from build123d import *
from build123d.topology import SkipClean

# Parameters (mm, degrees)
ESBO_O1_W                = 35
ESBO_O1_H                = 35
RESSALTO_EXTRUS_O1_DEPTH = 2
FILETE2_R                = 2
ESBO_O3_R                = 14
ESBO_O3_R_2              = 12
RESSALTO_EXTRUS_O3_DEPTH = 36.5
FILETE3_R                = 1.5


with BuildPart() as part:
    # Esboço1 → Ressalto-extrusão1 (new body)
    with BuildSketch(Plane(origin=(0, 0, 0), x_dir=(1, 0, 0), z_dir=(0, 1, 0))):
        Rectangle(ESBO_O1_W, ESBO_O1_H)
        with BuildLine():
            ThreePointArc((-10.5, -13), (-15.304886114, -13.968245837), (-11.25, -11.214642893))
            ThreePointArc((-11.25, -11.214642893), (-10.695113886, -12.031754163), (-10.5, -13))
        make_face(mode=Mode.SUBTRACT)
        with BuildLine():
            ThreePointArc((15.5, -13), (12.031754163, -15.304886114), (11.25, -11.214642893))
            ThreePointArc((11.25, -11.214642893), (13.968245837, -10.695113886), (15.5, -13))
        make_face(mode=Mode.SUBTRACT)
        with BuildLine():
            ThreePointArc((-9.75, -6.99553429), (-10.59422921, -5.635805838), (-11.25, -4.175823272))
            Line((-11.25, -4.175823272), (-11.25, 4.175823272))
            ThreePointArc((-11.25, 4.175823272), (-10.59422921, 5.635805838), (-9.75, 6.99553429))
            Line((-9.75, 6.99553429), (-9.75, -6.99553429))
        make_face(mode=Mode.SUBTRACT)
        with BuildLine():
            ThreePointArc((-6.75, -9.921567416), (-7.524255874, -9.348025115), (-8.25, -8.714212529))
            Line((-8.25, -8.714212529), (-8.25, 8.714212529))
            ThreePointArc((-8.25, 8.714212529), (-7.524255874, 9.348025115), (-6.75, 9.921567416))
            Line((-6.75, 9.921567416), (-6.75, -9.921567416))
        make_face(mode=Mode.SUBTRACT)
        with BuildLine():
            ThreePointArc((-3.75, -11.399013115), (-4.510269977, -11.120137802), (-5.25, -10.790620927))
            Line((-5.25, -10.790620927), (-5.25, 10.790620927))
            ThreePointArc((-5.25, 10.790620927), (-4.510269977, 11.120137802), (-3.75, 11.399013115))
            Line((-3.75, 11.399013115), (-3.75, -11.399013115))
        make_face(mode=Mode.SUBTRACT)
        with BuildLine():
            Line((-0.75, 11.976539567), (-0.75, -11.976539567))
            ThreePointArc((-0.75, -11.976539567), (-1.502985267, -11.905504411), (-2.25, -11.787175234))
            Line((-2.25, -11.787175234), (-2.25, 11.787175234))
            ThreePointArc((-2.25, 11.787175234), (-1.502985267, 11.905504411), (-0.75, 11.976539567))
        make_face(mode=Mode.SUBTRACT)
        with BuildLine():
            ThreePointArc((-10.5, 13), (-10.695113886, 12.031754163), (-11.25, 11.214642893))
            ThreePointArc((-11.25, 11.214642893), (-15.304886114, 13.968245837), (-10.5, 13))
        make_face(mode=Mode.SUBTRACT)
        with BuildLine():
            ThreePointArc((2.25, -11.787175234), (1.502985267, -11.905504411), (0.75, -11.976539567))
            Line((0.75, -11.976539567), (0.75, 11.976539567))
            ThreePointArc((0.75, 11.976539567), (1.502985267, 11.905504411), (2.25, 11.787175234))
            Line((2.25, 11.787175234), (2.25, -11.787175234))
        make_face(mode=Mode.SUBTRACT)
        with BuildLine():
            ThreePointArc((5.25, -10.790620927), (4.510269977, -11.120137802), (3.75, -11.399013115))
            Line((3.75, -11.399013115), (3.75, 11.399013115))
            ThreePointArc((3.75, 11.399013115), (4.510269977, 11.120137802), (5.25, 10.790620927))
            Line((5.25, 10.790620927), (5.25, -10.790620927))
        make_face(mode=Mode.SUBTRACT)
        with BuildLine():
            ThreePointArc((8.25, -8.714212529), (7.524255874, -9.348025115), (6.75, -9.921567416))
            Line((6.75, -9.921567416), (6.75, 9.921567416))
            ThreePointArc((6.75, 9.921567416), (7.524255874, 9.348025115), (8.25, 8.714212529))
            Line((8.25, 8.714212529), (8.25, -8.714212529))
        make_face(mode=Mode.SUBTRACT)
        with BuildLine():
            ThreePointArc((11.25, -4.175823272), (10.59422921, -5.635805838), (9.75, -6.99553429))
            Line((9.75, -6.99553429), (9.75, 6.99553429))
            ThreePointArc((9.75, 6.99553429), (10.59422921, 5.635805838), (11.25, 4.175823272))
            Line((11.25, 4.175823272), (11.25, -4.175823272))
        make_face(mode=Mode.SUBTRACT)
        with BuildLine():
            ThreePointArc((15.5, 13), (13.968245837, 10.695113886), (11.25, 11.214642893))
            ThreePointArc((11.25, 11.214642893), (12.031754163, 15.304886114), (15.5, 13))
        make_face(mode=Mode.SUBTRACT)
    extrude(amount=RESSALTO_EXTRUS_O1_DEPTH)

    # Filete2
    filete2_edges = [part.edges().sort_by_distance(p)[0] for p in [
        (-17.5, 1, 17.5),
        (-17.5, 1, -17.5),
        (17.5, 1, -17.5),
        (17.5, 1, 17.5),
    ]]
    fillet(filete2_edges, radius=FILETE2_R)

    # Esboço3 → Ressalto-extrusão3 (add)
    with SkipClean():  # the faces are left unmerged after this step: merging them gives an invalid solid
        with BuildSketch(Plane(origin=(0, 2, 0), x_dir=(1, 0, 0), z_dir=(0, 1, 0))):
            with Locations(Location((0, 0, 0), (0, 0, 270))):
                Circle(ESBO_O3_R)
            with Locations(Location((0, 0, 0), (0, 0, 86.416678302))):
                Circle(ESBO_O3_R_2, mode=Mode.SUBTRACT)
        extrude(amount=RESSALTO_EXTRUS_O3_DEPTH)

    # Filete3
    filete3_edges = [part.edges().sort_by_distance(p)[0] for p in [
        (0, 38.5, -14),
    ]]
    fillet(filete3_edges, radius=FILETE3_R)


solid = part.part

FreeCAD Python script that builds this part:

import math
import FreeCAD as App
import Part
import Sketcher
from FreeCAD import Vector
Q = App.Units.Quantity


def edges_at(feature, points):
    """Names of the edges that pass closest to the given points."""
    edges = feature.Shape.Edges
    near = lambda p: min(range(len(edges)), key=lambda i: edges[i].distToShape(Part.Vertex(*p))[0])
    return sorted({f"Edge{near(p) + 1}" for p in points})

doc = App.newDocument("Part")
body = doc.addObject("PartDesign::Body", "Body")

# Sketch on XZ plane
sketch1 = doc.addObject("Sketcher::SketchObject", "Sketch")
body.addObject(sketch1)
sketch1.AttachmentSupport = (doc.XZ_Plane, [""])
sketch1.MapMode = "FlatFace"
sketch1.addGeometry(Part.LineSegment(Vector(-17.5, -17.5, 0), Vector(-17.5, 17.5, 0)), False)
sketch1.addGeometry(Part.LineSegment(Vector(-17.5, 17.5, 0), Vector(17.5, 17.5, 0)), False)
sketch1.addGeometry(Part.LineSegment(Vector(17.5, 17.5, 0), Vector(17.5, -17.5, 0)), False)
sketch1.addGeometry(Part.LineSegment(Vector(17.5, -17.5, 0), Vector(-17.5, -17.5, 0)), False)
sketch1.addGeometry(Part.ArcOfCircle(Part.Circle(Vector(-13, 13, 0), Vector(0, 0, 1), 2.5), math.radians(-45.572996), math.radians(0)), False)
sketch1.addGeometry(Part.ArcOfCircle(Part.Circle(Vector(-13, 13, 0), Vector(0, 0, 1), 2.5), math.radians(0), math.radians(314.427004)), False)
sketch1.addGeometry(Part.ArcOfCircle(Part.Circle(Vector(13, 13, 0), Vector(0, 0, 1), 2.5), math.radians(-134.427004), math.radians(0)), False)
sketch1.addGeometry(Part.ArcOfCircle(Part.Circle(Vector(13, 13, 0), Vector(0, 0, 1), 2.5), math.radians(0), math.radians(225.572996)), False)
sketch1.addGeometry(Part.LineSegment(Vector(-9.75, -6.995534, 0), Vector(-9.75, 6.995534, 0)), False)
sketch1.addGeometry(Part.ArcOfCircle(Part.Circle(Vector(0, 0, 0), Vector(0, 0, 1), 12), math.radians(144.340912), math.radians(159.635865)), False)
sketch1.addGeometry(Part.LineSegment(Vector(-11.25, 4.175823, 0), Vector(-11.25, -4.175823, 0)), False)
sketch1.addGeometry(Part.ArcOfCircle(Part.Circle(Vector(0, 0, 0), Vector(0, 0, 1), 12), math.radians(-159.635865), math.radians(-144.340912)), False)
sketch1.addGeometry(Part.LineSegment(Vector(-6.75, -9.921567, 0), Vector(-6.75, 9.921567, 0)), False)
sketch1.addGeometry(Part.ArcOfCircle(Part.Circle(Vector(0, 0, 0), Vector(0, 0, 1), 12), math.radians(124.228866), math.radians(133.432537)), False)
sketch1.addGeometry(Part.LineSegment(Vector(-8.25, 8.714213, 0), Vector(-8.25, -8.714213, 0)), False)
sketch1.addGeometry(Part.ArcOfCircle(Part.Circle(Vector(0, 0, 0), Vector(0, 0, 1), 12), math.radians(-133.432537), math.radians(-124.228866)), False)
sketch1.addGeometry(Part.LineSegment(Vector(-3.75, -11.399013, 0), Vector(-3.75, 11.399013, 0)), False)
sketch1.addGeometry(Part.ArcOfCircle(Part.Circle(Vector(0, 0, 0), Vector(0, 0, 1), 12), math.radians(108.209957), math.radians(115.94448)), False)
sketch1.addGeometry(Part.LineSegment(Vector(-5.25, 10.790621, 0), Vector(-5.25, -10.790621, 0)), False)
sketch1.addGeometry(Part.ArcOfCircle(Part.Circle(Vector(0, 0, 0), Vector(0, 0, 1), 12), math.radians(-115.94448), math.radians(-108.209957)), False)
sketch1.addGeometry(Part.ArcOfCircle(Part.Circle(Vector(0, 0, 0), Vector(0, 0, 1), 12), math.radians(-100.806923), math.radians(-93.583322)), False)
sketch1.addGeometry(Part.LineSegment(Vector(-0.75, -11.97654, 0), Vector(-0.75, 11.97654, 0)), False)
sketch1.addGeometry(Part.ArcOfCircle(Part.Circle(Vector(0, 0, 0), Vector(0, 0, 1), 12), math.radians(93.583322), math.radians(100.806923)), False)
sketch1.addGeometry(Part.LineSegment(Vector(-2.25, 11.787175, 0), Vector(-2.25, -11.787175, 0)), False)
sketch1.addGeometry(Part.ArcOfCircle(Part.Circle(Vector(-13, -13, 0), Vector(0, 0, 1), 2.5), math.radians(45.572996), math.radians(360)), False)
sketch1.addGeometry(Part.ArcOfCircle(Part.Circle(Vector(-13, -13, 0), Vector(0, 0, 1), 2.5), math.radians(0), math.radians(45.572996)), False)
sketch1.addGeometry(Part.LineSegment(Vector(2.25, -11.787175, 0), Vector(2.25, 11.787175, 0)), False)
sketch1.addGeometry(Part.ArcOfCircle(Part.Circle(Vector(0, 0, 0), Vector(0, 0, 1), 12), math.radians(79.193077), math.radians(86.416678)), False)
sketch1.addGeometry(Part.LineSegment(Vector(0.75, 11.97654, 0), Vector(0.75, -11.97654, 0)), False)
sketch1.addGeometry(Part.ArcOfCircle(Part.Circle(Vector(0, 0, 0), Vector(0, 0, 1), 12), math.radians(-86.416678), math.radians(-79.193077)), False)
sketch1.addGeometry(Part.LineSegment(Vector(5.25, -10.790621, 0), Vector(5.25, 10.790621, 0)), False)
sketch1.addGeometry(Part.ArcOfCircle(Part.Circle(Vector(0, 0, 0), Vector(0, 0, 1), 12), math.radians(64.05552), math.radians(71.790043)), False)
sketch1.addGeometry(Part.LineSegment(Vector(3.75, 11.399013, 0), Vector(3.75, -11.399013, 0)), False)
sketch1.addGeometry(Part.ArcOfCircle(Part.Circle(Vector(0, 0, 0), Vector(0, 0, 1), 12), math.radians(-71.790043), math.radians(-64.05552)), False)
sketch1.addGeometry(Part.LineSegment(Vector(8.25, -8.714213, 0), Vector(8.25, 8.714213, 0)), False)
sketch1.addGeometry(Part.ArcOfCircle(Part.Circle(Vector(0, 0, 0), Vector(0, 0, 1), 12), math.radians(46.567463), math.radians(55.771134)), False)
sketch1.addGeometry(Part.LineSegment(Vector(6.75, 9.921567, 0), Vector(6.75, -9.921567, 0)), False)
sketch1.addGeometry(Part.ArcOfCircle(Part.Circle(Vector(0, 0, 0), Vector(0, 0, 1), 12), math.radians(-55.771134), math.radians(-46.567463)), False)
sketch1.addGeometry(Part.LineSegment(Vector(11.25, -4.175823, 0), Vector(11.25, 4.175823, 0)), False)
sketch1.addGeometry(Part.ArcOfCircle(Part.Circle(Vector(0, 0, 0), Vector(0, 0, 1), 12), math.radians(20.364135), math.radians(35.659088)), False)
sketch1.addGeometry(Part.LineSegment(Vector(9.75, 6.995534, 0), Vector(9.75, -6.995534, 0)), False)
sketch1.addGeometry(Part.ArcOfCircle(Part.Circle(Vector(0, 0, 0), Vector(0, 0, 1), 12), math.radians(-35.659088), math.radians(-20.364135)), False)
sketch1.addGeometry(Part.ArcOfCircle(Part.Circle(Vector(13, -13, 0), Vector(0, 0, 1), 2.5), math.radians(134.427004), math.radians(360)), False)
sketch1.addGeometry(Part.ArcOfCircle(Part.Circle(Vector(13, -13, 0), Vector(0, 0, 1), 2.5), math.radians(0), math.radians(134.427004)), False)
sketch1.addConstraint(Sketcher.Constraint("Coincident", 0, 2, 1, 1))
sketch1.addConstraint(Sketcher.Constraint("Coincident", 1, 2, 2, 1))
sketch1.addConstraint(Sketcher.Constraint("Coincident", 2, 2, 3, 1))
sketch1.addConstraint(Sketcher.Constraint("Coincident", 3, 2, 0, 1))
sketch1.addConstraint(Sketcher.Constraint("Tangent", 4, 1, 5, 2))
sketch1.addConstraint(Sketcher.Constraint("Coincident", 5, 1, 4, 2))
sketch1.addConstraint(Sketcher.Constraint("Tangent", 6, 1, 7, 2))
sketch1.addConstraint(Sketcher.Constraint("Coincident", 7, 1, 6, 2))
sketch1.addConstraint(Sketcher.Constraint("Coincident", 8, 2, 9, 1))
sketch1.addConstraint(Sketcher.Constraint("Coincident", 9, 2, 10, 1))
sketch1.addConstraint(Sketcher.Constraint("Coincident", 10, 2, 11, 1))
sketch1.addConstraint(Sketcher.Constraint("Coincident", 11, 2, 8, 1))
sketch1.addConstraint(Sketcher.Constraint("Coincident", 12, 2, 13, 1))
sketch1.addConstraint(Sketcher.Constraint("Coincident", 13, 2, 14, 1))
sketch1.addConstraint(Sketcher.Constraint("Coincident", 14, 2, 15, 1))
sketch1.addConstraint(Sketcher.Constraint("Coincident", 15, 2, 12, 1))
sketch1.addConstraint(Sketcher.Constraint("Coincident", 16, 2, 17, 1))
sketch1.addConstraint(Sketcher.Constraint("Coincident", 17, 2, 18, 1))
sketch1.addConstraint(Sketcher.Constraint("Coincident", 18, 2, 19, 1))
sketch1.addConstraint(Sketcher.Constraint("Coincident", 19, 2, 16, 1))
sketch1.addConstraint(Sketcher.Constraint("Coincident", 20, 2, 21, 1))
sketch1.addConstraint(Sketcher.Constraint("Coincident", 21, 2, 22, 1))
sketch1.addConstraint(Sketcher.Constraint("Coincident", 22, 2, 23, 1))
sketch1.addConstraint(Sketcher.Constraint("Coincident", 23, 2, 20, 1))
sketch1.addConstraint(Sketcher.Constraint("Tangent", 24, 1, 25, 2))
sketch1.addConstraint(Sketcher.Constraint("Coincident", 25, 1, 24, 2))
sketch1.addConstraint(Sketcher.Constraint("Coincident", 26, 2, 27, 1))
sketch1.addConstraint(Sketcher.Constraint("Coincident", 27, 2, 28, 1))
sketch1.addConstraint(Sketcher.Constraint("Coincident", 28, 2, 29, 1))
sketch1.addConstraint(Sketcher.Constraint("Coincident", 29, 2, 26, 1))
sketch1.addConstraint(Sketcher.Constraint("Coincident", 30, 2, 31, 1))
sketch1.addConstraint(Sketcher.Constraint("Coincident", 31, 2, 32, 1))
sketch1.addConstraint(Sketcher.Constraint("Coincident", 32, 2, 33, 1))
sketch1.addConstraint(Sketcher.Constraint("Coincident", 33, 2, 30, 1))
sketch1.addConstraint(Sketcher.Constraint("Coincident", 34, 2, 35, 1))
sketch1.addConstraint(Sketcher.Constraint("Coincident", 35, 2, 36, 1))
sketch1.addConstraint(Sketcher.Constraint("Coincident", 36, 2, 37, 1))
sketch1.addConstraint(Sketcher.Constraint("Coincident", 37, 2, 34, 1))
sketch1.addConstraint(Sketcher.Constraint("Coincident", 38, 2, 39, 1))
sketch1.addConstraint(Sketcher.Constraint("Coincident", 39, 2, 40, 1))
sketch1.addConstraint(Sketcher.Constraint("Coincident", 40, 2, 41, 1))
sketch1.addConstraint(Sketcher.Constraint("Coincident", 41, 2, 38, 1))
sketch1.addConstraint(Sketcher.Constraint("Tangent", 42, 1, 43, 2))
sketch1.addConstraint(Sketcher.Constraint("Coincident", 43, 1, 42, 2))
sketch1.addConstraint(Sketcher.Constraint("Vertical", 0))
sketch1.addConstraint(Sketcher.Constraint("Horizontal", 1))
sketch1.addConstraint(Sketcher.Constraint("Vertical", 2))
sketch1.addConstraint(Sketcher.Constraint("Horizontal", 3))
sketch1.addConstraint(Sketcher.Constraint("Vertical", 8))
sketch1.addConstraint(Sketcher.Constraint("Vertical", 10))
sketch1.addConstraint(Sketcher.Constraint("Vertical", 12))
sketch1.addConstraint(Sketcher.Constraint("Vertical", 14))
sketch1.addConstraint(Sketcher.Constraint("Vertical", 16))
sketch1.addConstraint(Sketcher.Constraint("Vertical", 18))
sketch1.addConstraint(Sketcher.Constraint("Vertical", 21))
sketch1.addConstraint(Sketcher.Constraint("Vertical", 23))
sketch1.addConstraint(Sketcher.Constraint("Vertical", 26))
sketch1.addConstraint(Sketcher.Constraint("Vertical", 28))
sketch1.addConstraint(Sketcher.Constraint("Vertical", 30))
sketch1.addConstraint(Sketcher.Constraint("Vertical", 32))
sketch1.addConstraint(Sketcher.Constraint("Vertical", 34))
sketch1.addConstraint(Sketcher.Constraint("Vertical", 36))
sketch1.addConstraint(Sketcher.Constraint("Vertical", 38))
sketch1.addConstraint(Sketcher.Constraint("Vertical", 40))
sketch1.addConstraint(Sketcher.Constraint("Coincident", 9, 3, -1, 1))
sketch1.addConstraint(Sketcher.Constraint("Coincident", 11, 3, -1, 1))
sketch1.addConstraint(Sketcher.Constraint("Coincident", 13, 3, -1, 1))
sketch1.addConstraint(Sketcher.Constraint("Coincident", 15, 3, -1, 1))
sketch1.addConstraint(Sketcher.Constraint("Coincident", 17, 3, -1, 1))
sketch1.addConstraint(Sketcher.Constraint("Coincident", 19, 3, -1, 1))
sketch1.addConstraint(Sketcher.Constraint("Coincident", 20, 3, -1, 1))
sketch1.addConstraint(Sketcher.Constraint("Coincident", 22, 3, -1, 1))
sketch1.addConstraint(Sketcher.Constraint("Coincident", 27, 3, -1, 1))
sketch1.addConstraint(Sketcher.Constraint("Coincident", 29, 3, -1, 1))
sketch1.addConstraint(Sketcher.Constraint("Coincident", 31, 3, -1, 1))
sketch1.addConstraint(Sketcher.Constraint("Coincident", 33, 3, -1, 1))
sketch1.addConstraint(Sketcher.Constraint("Coincident", 35, 3, -1, 1))
sketch1.addConstraint(Sketcher.Constraint("Coincident", 37, 3, -1, 1))
sketch1.addConstraint(Sketcher.Constraint("Coincident", 39, 3, -1, 1))
sketch1.addConstraint(Sketcher.Constraint("Coincident", 41, 3, -1, 1))
sketch1.addConstraint(Sketcher.Constraint("Equal", 5, 6))
sketch1.addConstraint(Sketcher.Constraint("Equal", 9, 11))
sketch1.addConstraint(Sketcher.Constraint("Equal", 11, 13))
sketch1.addConstraint(Sketcher.Constraint("Equal", 13, 15))
sketch1.addConstraint(Sketcher.Constraint("Equal", 15, 17))
sketch1.addConstraint(Sketcher.Constraint("Equal", 17, 19))
sketch1.addConstraint(Sketcher.Constraint("Equal", 19, 20))
sketch1.addConstraint(Sketcher.Constraint("Equal", 20, 22))
sketch1.addConstraint(Sketcher.Constraint("Equal", 7, 24))
sketch1.addConstraint(Sketcher.Constraint("Equal", 22, 27))
sketch1.addConstraint(Sketcher.Constraint("Equal", 27, 29))
sketch1.addConstraint(Sketcher.Constraint("Equal", 29, 31))
sketch1.addConstraint(Sketcher.Constraint("Equal", 31, 33))
sketch1.addConstraint(Sketcher.Constraint("Equal", 33, 35))
sketch1.addConstraint(Sketcher.Constraint("Equal", 35, 37))
sketch1.addConstraint(Sketcher.Constraint("Equal", 37, 39))
sketch1.addConstraint(Sketcher.Constraint("Equal", 39, 41))
sketch1.addConstraint(Sketcher.Constraint("Equal", 25, 42))
sketch1.addConstraint(Sketcher.Constraint("Symmetric", 6, 3, 24, 3, -1, 1))
sketch1.addConstraint(Sketcher.Constraint("Symmetric", 4, 3, 42, 3, -1, 1))
sketch1.addConstraint(Sketcher.Constraint("Symmetric", 0, 2, 2, 2, -1, 1))
sketch1.addConstraint(Sketcher.Constraint("Symmetric", 4, 3, 6, 3, -2))
sketch1.addConstraint(Sketcher.Constraint("Horizontal", 7, 3, 5, 1))
sketch1.addConstraint(Sketcher.Constraint("Horizontal", 4, 1, 6, 1))
sketch1.addConstraint(Sketcher.Constraint("Horizontal", 5, 1, 7, 1))
sketch1.addConstraint(Sketcher.Constraint("Horizontal", 43, 3, 25, 1))
sketch1.addConstraint(Sketcher.Constraint("Horizontal", 22, 2, 26, 2))
sketch1.addConstraint(Sketcher.Constraint("Horizontal", 21, 2, 27, 2))
sketch1.addConstraint(Sketcher.Constraint("Horizontal", 17, 2, 30, 2))
sketch1.addConstraint(Sketcher.Constraint("Horizontal", 16, 2, 31, 2))
sketch1.addConstraint(Sketcher.Constraint("Horizontal", 13, 2, 34, 2))
sketch1.addConstraint(Sketcher.Constraint("Horizontal", 12, 2, 35, 2))
sketch1.addConstraint(Sketcher.Constraint("Horizontal", 9, 2, 38, 2))
sketch1.addConstraint(Sketcher.Constraint("Horizontal", 8, 2, 39, 2))
sketch1.addConstraint(Sketcher.Constraint("Horizontal", 24, 1, 42, 1))
sketch1.addConstraint(Sketcher.Constraint("Horizontal", 25, 1, 43, 1))
sketch1.addConstraint(Sketcher.Constraint("Vertical", 4, 1, 9, 2))
sketch1.addConstraint(Sketcher.Constraint("Vertical", 10, 2, 24, 1))
sketch1.addConstraint(Sketcher.Constraint("Equal", 3, 0))
sketch1.addConstraint(Sketcher.Constraint("Radius", 9, Q("12 mm")))
sketch1.addConstraint(Sketcher.Constraint("Radius", 4, Q("2.5 mm")))
sketch1.addConstraint(Sketcher.Constraint("DistanceX", 1, 1, 1, 2, Q("35 mm")))
sketch1.addConstraint(Sketcher.Constraint("DistanceX", 4, 3, -1, 1, Q("13 mm")))
sketch1.addConstraint(Sketcher.Constraint("DistanceY", -1, 1, 4, 3, Q("13 mm")))
sketch1.addConstraint(Sketcher.Constraint("DistanceX", 4, 1, -1, 1, Q("11.25 mm")))
sketch1.addConstraint(Sketcher.Constraint("DistanceX", 8, 2, -1, 1, Q("9.75 mm")))
sketch1.addConstraint(Sketcher.Constraint("DistanceX", 12, 2, -1, 1, Q("6.75 mm")))
sketch1.addConstraint(Sketcher.Constraint("DistanceX", 13, 2, -1, 1, Q("8.25 mm")))
sketch1.addConstraint(Sketcher.Constraint("DistanceX", 16, 2, -1, 1, Q("3.75 mm")))
sketch1.addConstraint(Sketcher.Constraint("DistanceX", 17, 2, -1, 1, Q("5.25 mm")))
sketch1.addConstraint(Sketcher.Constraint("DistanceX", 20, 2, -1, 1, Q("0.75 mm")))
sketch1.addConstraint(Sketcher.Constraint("DistanceX", 22, 2, -1, 1, Q("2.25 mm")))
pad1 = doc.addObject("PartDesign::Pad", "Pad")
body.addObject(pad1)
pad1.Profile = sketch1
pad1.Length = 2
pad1.Reversed = True
doc.recompute()

fillet = doc.addObject("PartDesign::Fillet", "Fillet")
body.addObject(fillet)
fillet.Base = (pad1, edges_at(pad1, [
    (-17.5, 1, 17.5),
    (-17.5, 1, -17.5),
    (17.5, 1, -17.5),
    (17.5, 1, 17.5),
]))
fillet.Radius = 2

# Sketch on XZ plane
sketch2 = doc.addObject("Sketcher::SketchObject", "Sketch001")
body.addObject(sketch2)
sketch2.AttachmentSupport = (doc.XZ_Plane, [""])
sketch2.MapMode = "FlatFace"
sketch2.AttachmentOffset = App.Placement(Vector(0, 0, -2), App.Rotation())
sketch2.addGeometry(Part.Circle(Vector(0, 0, 0), Vector(0, 0, 1), 14), False)
sketch2.addGeometry(Part.Circle(Vector(0, 0, 0), Vector(0, 0, 1), 12), False)
sketch2.addConstraint(Sketcher.Constraint("Coincident", 0, 3, -1, 1))
sketch2.addConstraint(Sketcher.Constraint("Coincident", 1, 3, -1, 1))
sketch2.addConstraint(Sketcher.Constraint("Diameter", 0, Q("28 mm")))
sketch2.addConstraint(Sketcher.Constraint("Diameter", 1, Q("24 mm")))
pad2 = doc.addObject("PartDesign::Pad", "Pad001")
body.addObject(pad2)
pad2.Profile = sketch2
pad2.Length = 36.5
pad2.Reversed = True
doc.recompute()

fillet2 = doc.addObject("PartDesign::Fillet", "Fillet001")
body.addObject(fillet2)
fillet2.Base = (pad2, edges_at(pad2, [(0, 38.5, -14)]))
fillet2.Radius = 1.5

doc.recompute()
